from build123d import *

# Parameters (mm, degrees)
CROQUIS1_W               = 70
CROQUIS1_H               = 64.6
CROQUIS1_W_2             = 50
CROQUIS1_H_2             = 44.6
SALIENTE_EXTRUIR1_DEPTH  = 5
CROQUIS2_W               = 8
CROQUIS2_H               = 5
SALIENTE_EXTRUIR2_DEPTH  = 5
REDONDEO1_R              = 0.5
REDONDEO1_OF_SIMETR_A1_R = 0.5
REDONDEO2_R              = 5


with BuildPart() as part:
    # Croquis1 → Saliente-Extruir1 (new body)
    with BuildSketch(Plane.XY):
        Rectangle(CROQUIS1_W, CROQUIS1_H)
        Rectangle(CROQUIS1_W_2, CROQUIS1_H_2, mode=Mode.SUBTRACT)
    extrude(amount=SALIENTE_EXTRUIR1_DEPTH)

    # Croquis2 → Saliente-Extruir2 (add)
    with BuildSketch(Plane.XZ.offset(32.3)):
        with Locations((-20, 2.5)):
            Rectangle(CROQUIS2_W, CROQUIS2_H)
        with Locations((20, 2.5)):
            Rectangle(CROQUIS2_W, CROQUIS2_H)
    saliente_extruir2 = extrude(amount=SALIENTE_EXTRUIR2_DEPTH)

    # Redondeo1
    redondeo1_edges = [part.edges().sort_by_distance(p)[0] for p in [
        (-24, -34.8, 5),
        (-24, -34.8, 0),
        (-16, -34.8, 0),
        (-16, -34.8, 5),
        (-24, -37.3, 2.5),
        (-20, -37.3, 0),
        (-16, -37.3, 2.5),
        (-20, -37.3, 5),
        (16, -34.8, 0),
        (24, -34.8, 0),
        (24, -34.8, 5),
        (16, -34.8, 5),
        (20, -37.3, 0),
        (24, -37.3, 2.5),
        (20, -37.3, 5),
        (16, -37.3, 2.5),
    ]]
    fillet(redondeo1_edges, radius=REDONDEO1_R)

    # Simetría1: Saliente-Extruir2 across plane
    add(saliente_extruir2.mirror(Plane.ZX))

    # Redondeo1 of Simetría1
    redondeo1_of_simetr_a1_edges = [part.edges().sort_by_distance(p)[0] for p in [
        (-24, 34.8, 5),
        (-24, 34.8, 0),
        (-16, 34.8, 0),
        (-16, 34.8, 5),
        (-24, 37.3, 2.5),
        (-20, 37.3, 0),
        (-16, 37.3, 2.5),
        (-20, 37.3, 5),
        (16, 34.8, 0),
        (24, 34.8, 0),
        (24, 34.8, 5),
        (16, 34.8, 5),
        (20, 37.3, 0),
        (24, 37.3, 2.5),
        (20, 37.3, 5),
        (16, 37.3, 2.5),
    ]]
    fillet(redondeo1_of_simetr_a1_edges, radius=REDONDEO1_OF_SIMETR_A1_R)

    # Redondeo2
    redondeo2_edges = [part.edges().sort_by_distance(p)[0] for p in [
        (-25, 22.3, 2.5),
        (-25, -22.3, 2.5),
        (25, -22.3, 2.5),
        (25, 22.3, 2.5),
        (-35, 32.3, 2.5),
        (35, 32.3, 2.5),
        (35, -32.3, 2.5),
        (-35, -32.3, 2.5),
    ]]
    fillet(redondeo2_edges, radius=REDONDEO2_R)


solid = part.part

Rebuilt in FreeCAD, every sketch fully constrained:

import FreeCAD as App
import Part
import Sketcher
from FreeCAD import Vector
Q = App.Units.Quantity


def edges_at(feature, points):
    """Names of the edges that pass closest to the given points."""
    edges = feature.Shape.Edges
    near = lambda p: min(range(len(edges)), key=lambda i: edges[i].distToShape(Part.Vertex(*p))[0])
    return sorted({f"Edge{near(p) + 1}" for p in points})

doc = App.newDocument("Part")
body = doc.addObject("PartDesign::Body", "Body")

# Sketch on XY plane
sketch1 = doc.addObject("Sketcher::SketchObject", "Sketch")
body.addObject(sketch1)
sketch1.AttachmentSupport = (doc.XY_Plane, [""])
sketch1.MapMode = "FlatFace"
sketch1.addGeometry([
    Part.LineSegment(Vector(-35, 32, 0), Vector(-35, -32, 0)),  # 0
    Part.LineSegment(Vector(-35, -32, 0), Vector(35, -32, 0)),  # 1
    Part.LineSegment(Vector(35, -32, 0), Vector(35, 32, 0)),  # 2
    Part.LineSegment(Vector(35, 32, 0), Vector(-35, 32, 0)),  # 3
    Part.LineSegment(Vector(25, -22, 0), Vector(-25, -22, 0)),  # 4
    Part.LineSegment(Vector(-25, -22, 0), Vector(-25, 22, 0)),  # 5
    Part.LineSegment(Vector(-25, 22, 0), Vector(25, 22, 0)),  # 6
    Part.LineSegment(Vector(25, 22, 0), Vector(25, -22, 0)),  # 7
], False)
sketch1.addConstraint([
    Sketcher.Constraint("Coincident", 0, 2, 1, 1),
    Sketcher.Constraint("Coincident", 1, 2, 2, 1),
    Sketcher.Constraint("Coincident", 2, 2, 3, 1),
    Sketcher.Constraint("Coincident", 3, 2, 0, 1),
    Sketcher.Constraint("Coincident", 4, 2, 5, 1),
    Sketcher.Constraint("Coincident", 5, 2, 6, 1),
    Sketcher.Constraint("Coincident", 6, 2, 7, 1),
    Sketcher.Constraint("Coincident", 7, 2, 4, 1),
    Sketcher.Constraint("Vertical", 0),
    Sketcher.Constraint("Horizontal", 1),
    Sketcher.Constraint("Vertical", 2),
    Sketcher.Constraint("Horizontal", 3),
    Sketcher.Constraint("Horizontal", 4),
    Sketcher.Constraint("Vertical", 5),
    Sketcher.Constraint("Horizontal", 6),
    Sketcher.Constraint("Vertical", 7),
    Sketcher.Constraint("Symmetric", 0, 2, 2, 2, -1, 1),
    Sketcher.Constraint("Symmetric", 4, 2, 6, 2, -1, 1),
    Sketcher.Constraint("DistanceX", 1, 1, 1, 2, Q("70 mm")),
    Sketcher.Constraint("DistanceX", 4, 2, 4, 1, Q("50 mm")),
    Sketcher.Constraint("DistanceY", 0, 2, 0, 1, Q("64.6 mm")),
    Sketcher.Constraint("DistanceY", 5, 1, 5, 2, Q("44.6 mm")),
])
pad1 = doc.addObject("PartDesign::Pad", "Pad")
body.addObject(pad1)
pad1.Profile = sketch1
pad1.Length = 5

# Sketch on XZ plane
sketch2 = doc.addObject("Sketcher::SketchObject", "Sketch001")
body.addObject(sketch2)
sketch2.AttachmentSupport = (doc.XZ_Plane, [""])
sketch2.MapMode = "FlatFace"
sketch2.AttachmentOffset = App.Placement(Vector(0, 0, 32.3), App.Rotation())
sketch2.addGeometry([
    Part.LineSegment(Vector(-24, 5, 0), Vector(-24, 0, 0)),  # 0
    Part.LineSegment(Vector(-24, 0, 0), Vector(-16, 0, 0)),  # 1
    Part.LineSegment(Vector(-16, 0, 0), Vector(-16, 5, 0)),  # 2
    Part.LineSegment(Vector(-16, 5, 0), Vector(-24, 5, 0)),  # 3
    Part.LineSegment(Vector(16, 5, 0), Vector(16, 0, 0)),  # 4
    Part.LineSegment(Vector(16, 0, 0), Vector(24, 0, 0)),  # 5
    Part.LineSegment(Vector(24, 0, 0), Vector(24, 5, 0)),  # 6
    Part.LineSegment(Vector(24, 5, 0), Vector(16, 5, 0)),  # 7
], False)
sketch2.addConstraint([
    Sketcher.Constraint("Coincident", 0, 2, 1, 1),
    Sketcher.Constraint("Coincident", 1, 2, 2, 1),
    Sketcher.Constraint("Coincident", 2, 2, 3, 1),
    Sketcher.Constraint("Coincident", 3, 2, 0, 1),
    Sketcher.Constraint("Coincident", 4, 2, 5, 1),
    Sketcher.Constraint("Coincident", 5, 2, 6, 1),
    Sketcher.Constraint("Coincident", 6, 2, 7, 1),
    Sketcher.Constraint("Coincident", 7, 2, 4, 1),
    Sketcher.Constraint("Vertical", 0),
    Sketcher.Constraint("Horizontal", 1),
    Sketcher.Constraint("Vertical", 2),
    Sketcher.Constraint("Horizontal", 3),
    Sketcher.Constraint("Vertical", 4),
    Sketcher.Constraint("Horizontal", 5),
    Sketcher.Constraint("Vertical", 6),
    Sketcher.Constraint("Horizontal", 7),
    Sketcher.Constraint("Symmetric", 1, 2, 4, 2, -1, 1),
    Sketcher.Constraint("Symmetric", 0, 2, 5, 2, -2),
    Sketcher.Constraint("Horizontal", 3, 2, 6, 2),
    Sketcher.Constraint("DistanceX", 1, 1, 1, 2, Q("8 mm")),
    Sketcher.Constraint("DistanceY", 0, 2, 0, 1, Q("5 mm")),
    Sketcher.Constraint("DistanceX", 0, 2, -1, 1, Q("24 mm")),
])
pad2 = doc.addObject("PartDesign::Pad", "Pad001")
body.addObject(pad2)
pad2.Profile = sketch2
pad2.Length = 5
doc.recompute()

fillet = doc.addObject("PartDesign::Fillet", "Fillet")
body.addObject(fillet)
fillet.Base = (pad2, edges_at(pad2, [
    (-24, -34.8, 5),
    (-24, -34.8, 0),
    (-16, -34.8, 0),
    (-16, -34.8, 5),
    (-24, -37.3, 2.5),
    (-20, -37.3, 0),
    (-16, -37.3, 2.5),
    (-20, -37.3, 5),
    (16, -34.8, 0),
    (24, -34.8, 0),
    (24, -34.8, 5),
    (16, -34.8, 5),
    (20, -37.3, 0),
    (24, -37.3, 2.5),
    (20, -37.3, 5),
    (16, -37.3, 2.5),
]))
fillet.Radius = 0.5
doc.recompute()

mirrored = doc.addObject("PartDesign::Mirrored", "Mirrored")
body.addObject(mirrored)
mirrored.Originals = [pad2]
mirrored.MirrorPlane = (doc.XZ_Plane, [""])
body.Tip = mirrored
doc.recompute()

fillet2 = doc.addObject("PartDesign::Fillet", "Fillet001")
body.addObject(fillet2)
fillet2.Base = (mirrored, edges_at(mirrored, [
    (-24, 34.8, 5),
    (-24, 34.8, 0),
    (-16, 34.8, 0),
    (-16, 34.8, 5),
    (-24, 37.3, 2.5),
    (-20, 37.3, 0),
    (-16, 37.3, 2.5),
    (-20, 37.3, 5),
    (16, 34.8, 0),
    (24, 34.8, 0),
    (24, 34.8, 5),
    (16, 34.8, 5),
    (20, 37.3, 0),
    (24, 37.3, 2.5),
    (20, 37.3, 5),
    (16, 37.3, 2.5),
]))
fillet2.Radius = 0.5
doc.recompute()

fillet3 = doc.addObject("PartDesign::Fillet", "Fillet002")
body.addObject(fillet3)
fillet3.Base = (fillet2, edges_at(fillet2, [
    (-25, 22.3, 2.5),
    (-25, -22.3, 2.5),
    (25, -22.3, 2.5),
    (25, 22.3, 2.5),
    (-35, 32.3, 2.5),
    (35, 32.3, 2.5),
    (35, -32.3, 2.5),
    (-35, -32.3, 2.5),
]))
fillet3.Radius = 5

doc.recompute()
